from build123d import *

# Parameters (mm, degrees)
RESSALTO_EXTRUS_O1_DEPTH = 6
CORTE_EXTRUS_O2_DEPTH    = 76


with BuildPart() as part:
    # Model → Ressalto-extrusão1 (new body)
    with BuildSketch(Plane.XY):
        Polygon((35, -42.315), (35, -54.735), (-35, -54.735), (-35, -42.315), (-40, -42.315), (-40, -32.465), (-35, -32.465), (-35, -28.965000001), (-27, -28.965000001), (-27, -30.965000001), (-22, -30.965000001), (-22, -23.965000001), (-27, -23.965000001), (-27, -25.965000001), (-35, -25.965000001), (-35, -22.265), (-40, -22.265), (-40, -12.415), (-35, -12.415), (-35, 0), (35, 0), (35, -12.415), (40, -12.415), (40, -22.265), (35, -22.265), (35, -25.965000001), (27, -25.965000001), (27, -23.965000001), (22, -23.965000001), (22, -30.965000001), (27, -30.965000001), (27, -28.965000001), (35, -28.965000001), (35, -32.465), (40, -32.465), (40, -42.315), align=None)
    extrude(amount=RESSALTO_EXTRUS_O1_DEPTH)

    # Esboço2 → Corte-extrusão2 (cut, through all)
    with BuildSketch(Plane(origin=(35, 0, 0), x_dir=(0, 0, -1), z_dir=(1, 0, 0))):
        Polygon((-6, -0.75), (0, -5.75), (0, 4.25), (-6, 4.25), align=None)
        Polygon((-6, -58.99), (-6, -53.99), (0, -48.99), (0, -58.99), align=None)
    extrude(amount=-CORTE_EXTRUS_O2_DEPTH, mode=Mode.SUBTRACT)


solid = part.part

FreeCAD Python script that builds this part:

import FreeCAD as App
import Part
import Sketcher

doc = App.newDocument("Part")
body = doc.addObject("PartDesign::Body", "Body")

sketch1 = body.newObject("Sketcher::SketchObject", "Sketch")
sketch1.AttachmentSupport = (doc.getObject("XY_Plane"), [""])
sketch1.MapMode = "FlatFace"
sketch1.addGeometry([
    Part.LineSegment(App.Vector(35, -54.7, 0), App.Vector(35, -42.3, 0)),
    Part.LineSegment(App.Vector(35, -42.3, 0), App.Vector(40, -42.3, 0)),
    Part.LineSegment(App.Vector(40, -42.3, 0), App.Vector(40, -32.5, 0)),
    Part.LineSegment(App.Vector(40, -32.5, 0), App.Vector(35, -32.5, 0)),
    Part.LineSegment(App.Vector(35, -32.5, 0), App.Vector(35, -29, 0)),
    Part.LineSegment(App.Vector(35, -29, 0), App.Vector(27, -29, 0)),
    Part.LineSegment(App.Vector(27, -29, 0), App.Vector(27, -31, 0)),
    Part.LineSegment(App.Vector(27, -31, 0), App.Vector(22, -31, 0)),
    Part.LineSegment(App.Vector(22, -31, 0), App.Vector(22, -24, 0)),
    Part.LineSegment(App.Vector(22, -24, 0), App.Vector(27, -24, 0)),
    Part.LineSegment(App.Vector(27, -24, 0), App.Vector(27, -26, 0)),
    Part.LineSegment(App.Vector(27, -26, 0), App.Vector(35, -26, 0)),
    Part.LineSegment(App.Vector(35, -26, 0), App.Vector(35, -22.3, 0)),
    Part.LineSegment(App.Vector(35, -22.3, 0), App.Vector(40, -22.3, 0)),
    Part.LineSegment(App.Vector(40, -22.3, 0), App.Vector(40, -12.4, 0)),
    Part.LineSegment(App.Vector(40, -12.4, 0), App.Vector(35, -12.4, 0)),
    Part.LineSegment(App.Vector(35, -12.4, 0), App.Vector(35, 0, 0)),
    Part.LineSegment(App.Vector(35, 0, 0), App.Vector(-35, 0, 0)),
    Part.LineSegment(App.Vector(-35, 0, 0), App.Vector(-35, -12.4, 0)),
    Part.LineSegment(App.Vector(-35, -12.4, 0), App.Vector(-40, -12.4, 0)),
    Part.LineSegment(App.Vector(-40, -12.4, 0), App.Vector(-40, -22.3, 0)),
    Part.LineSegment(App.Vector(-40, -22.3, 0), App.Vector(-35, -22.3, 0)),
    Part.LineSegment(App.Vector(-35, -22.3, 0), App.Vector(-35, -26, 0)),
    Part.LineSegment(App.Vector(-35, -26, 0), App.Vector(-27, -26, 0)),
    Part.LineSegment(App.Vector(-27, -26, 0), App.Vector(-27, -24, 0)),
    Part.LineSegment(App.Vector(-27, -24, 0), App.Vector(-22, -24, 0)),
    Part.LineSegment(App.Vector(-22, -24, 0), App.Vector(-22, -31, 0)),
    Part.LineSegment(App.Vector(-22, -31, 0), App.Vector(-27, -31, 0)),
    Part.LineSegment(App.Vector(-27, -31, 0), App.Vector(-27, -29, 0)),
    Part.LineSegment(App.Vector(-27, -29, 0), App.Vector(-35, -29, 0)),
    Part.LineSegment(App.Vector(-35, -29, 0), App.Vector(-35, -32.5, 0)),
    Part.LineSegment(App.Vector(-35, -32.5, 0), App.Vector(-40, -32.5, 0)),
    Part.LineSegment(App.Vector(-40, -32.5, 0), App.Vector(-40, -42.3, 0)),
    Part.LineSegment(App.Vector(-40, -42.3, 0), App.Vector(-35, -42.3, 0)),
    Part.LineSegment(App.Vector(-35, -42.3, 0), App.Vector(-35, -54.7, 0)),
    Part.LineSegment(App.Vector(-35, -54.7, 0), App.Vector(35, -54.7, 0)),
], False)
sketch1.addConstraint([
    Sketcher.Constraint("Coincident", 0, 2, 1, 1),
    Sketcher.Constraint("Coincident", 1, 2, 2, 1),
    Sketcher.Constraint("Coincident", 2, 2, 3, 1),
    Sketcher.Constraint("Coincident", 3, 2, 4, 1),
    Sketcher.Constraint("Coincident", 4, 2, 5, 1),
    Sketcher.Constraint("Coincident", 5, 2, 6, 1),
    Sketcher.Constraint("Coincident", 6, 2, 7, 1),
    Sketcher.Constraint("Coincident", 7, 2, 8, 1),
    Sketcher.Constraint("Coincident", 8, 2, 9, 1),
    Sketcher.Constraint("Coincident", 9, 2, 10, 1),
    Sketcher.Constraint("Coincident", 10, 2, 11, 1),
    Sketcher.Constraint("Coincident", 11, 2, 12, 1),
    Sketcher.Constraint("Coincident", 12, 2, 13, 1),
    Sketcher.Constraint("Coincident", 13, 2, 14, 1),
    Sketcher.Constraint("Coincident", 14, 2, 15, 1),
    Sketcher.Constraint("Coincident", 15, 2, 16, 1),
    Sketcher.Constraint("Coincident", 16, 2, 17, 1),
    Sketcher.Constraint("Coincident", 17, 2, 18, 1),
    Sketcher.Constraint("Coincident", 18, 2, 19, 1),
    Sketcher.Constraint("Coincident", 19, 2, 20, 1),
    Sketcher.Constraint("Coincident", 20, 2, 21, 1),
    Sketcher.Constraint("Coincident", 21, 2, 22, 1),
    Sketcher.Constraint("Coincident", 22, 2, 23, 1),
    Sketcher.Constraint("Coincident", 23, 2, 24, 1),
    Sketcher.Constraint("Coincident", 24, 2, 25, 1),
    Sketcher.Constraint("Coincident", 25, 2, 26, 1),
    Sketcher.Constraint("Coincident", 26, 2, 27, 1),
    Sketcher.Constraint("Coincident", 27, 2, 28, 1),
    Sketcher.Constraint("Coincident", 28, 2, 29, 1),
    Sketcher.Constraint("Coincident", 29, 2, 30, 1),
    Sketcher.Constraint("Coincident", 30, 2, 31, 1),
    Sketcher.Constraint("Coincident", 31, 2, 32, 1),
    Sketcher.Constraint("Coincident", 32, 2, 33, 1),
    Sketcher.Constraint("Coincident", 33, 2, 34, 1),
    Sketcher.Constraint("Coincident", 34, 2, 35, 1),
    Sketcher.Constraint("Coincident", 35, 2, 0, 1),
    Sketcher.Constraint("Vertical", 0),
    Sketcher.Constraint("Horizontal", 1),
    Sketcher.Constraint("Vertical", 2),
    Sketcher.Constraint("Horizontal", 3),
    Sketcher.Constraint("Vertical", 4),
    Sketcher.Constraint("Horizontal", 5),
    Sketcher.Constraint("Vertical", 6),
    Sketcher.Constraint("Horizontal", 7),
    Sketcher.Constraint("Vertical", 8),
    Sketcher.Constraint("Horizontal", 9),
    Sketcher.Constraint("Vertical", 10),
    Sketcher.Constraint("Horizontal", 11),
    Sketcher.Constraint("Vertical", 12),
    Sketcher.Constraint("Horizontal", 13),
    Sketcher.Constraint("Vertical", 14),
    Sketcher.Constraint("Horizontal", 15),
    Sketcher.Constraint("Vertical", 16),
    Sketcher.Constraint("Horizontal", 17),
    Sketcher.Constraint("Vertical", 18),
    Sketcher.Constraint("Horizontal", 19),
    Sketcher.Constraint("Vertical", 20),
    Sketcher.Constraint("Horizontal", 21),
    Sketcher.Constraint("Vertical", 22),
    Sketcher.Constraint("Horizontal", 23),
    Sketcher.Constraint("Vertical", 24),
    Sketcher.Constraint("Horizontal", 25),
    Sketcher.Constraint("Vertical", 26),
    Sketcher.Constraint("Horizontal", 27),
    Sketcher.Constraint("Vertical", 28),
    Sketcher.Constraint("Horizontal", 29),
    Sketcher.Constraint("Vertical", 30),
    Sketcher.Constraint("Horizontal", 31),
    Sketcher.Constraint("Vertical", 32),
    Sketcher.Constraint("Horizontal", 33),
    Sketcher.Constraint("Vertical", 34),
    Sketcher.Constraint("Horizontal", 35),
    Sketcher.Constraint("Symmetric", 16, 2, 17, 2, -1, 1),
    Sketcher.Constraint("Symmetric", 14, 2, 19, 2, -2),
    Sketcher.Constraint("Symmetric", 12, 2, 21, 2, -2),
    Sketcher.Constraint("Symmetric", 10, 2, 23, 2, -2),
    Sketcher.Constraint("Symmetric", 8, 2, 25, 2, -2),
    Sketcher.Constraint("Symmetric", 6, 2, 27, 2, -2),
    Sketcher.Constraint("Symmetric", 4, 2, 29, 2, -2),
    Sketcher.Constraint("Symmetric", 2, 2, 31, 2, -2),
    Sketcher.Constraint("Symmetric", 0, 2, 33, 2, -2),
    Sketcher.Constraint("Vertical", 0, 2, 3, 2),
    Sketcher.Constraint("Vertical", 6, 2, 9, 2),
    Sketcher.Constraint("Vertical", 4, 2, 11, 2),
    Sketcher.Constraint("Vertical", 2, 2, 13, 2),
    Sketcher.Constraint("Vertical", 12, 2, 15, 2),
    Sketcher.Constraint("Equal", 3, 7),
    Sketcher.Constraint("Equal", 6, 10),
    Sketcher.Constraint("Equal", 2, 14),
    Sketcher.Constraint("DistanceX", 1, 1, 1, 2, 5.0),
    Sketcher.Constraint("DistanceX", 5, 2, 5, 1, 8.0),
    Sketcher.Constraint("DistanceX", 17, 2, 17, 1, 70.0),
    Sketcher.Constraint("DistanceY", 6, 2, 6, 1, 2.0),
    Sketcher.Constraint("DistanceY", 8, 1, 8, 2, 7.0),
    Sketcher.Constraint("DistanceY", 4, 1, 4, 2, 3.5),
    Sketcher.Constraint("DistanceY", 12, 1, 12, 2, 3.7),
    Sketcher.Constraint("DistanceY", 0, 1, 0, 2, 12.42),
    Sketcher.Constraint("DistanceY", 2, 1, 2, 2, 9.85),
    Sketcher.Constraint("DistanceY", 16, 1, 16, 2, 12.415),
])
pad1 = body.newObject("PartDesign::Pad", "Pad")
pad1.Profile = sketch1
pad1.Length = 6

sketch2 = body.newObject("Sketcher::SketchObject", "Sketch001")
sketch2.AttachmentSupport = (doc.getObject("YZ_Plane"), [""])
sketch2.MapMode = "FlatFace"
sketch2.AttachmentOffset = App.Placement(App.Vector(0, 0, 35), App.Rotation())
sketch2.addGeometry([
    Part.LineSegment(App.Vector(-1, 6, 0), App.Vector(-6, 0, 0)),
    Part.LineSegment(App.Vector(-6, 0, 0), App.Vector(4, 0, 0)),
    Part.LineSegment(App.Vector(4, 0, 0), App.Vector(4, 6, 0)),
    Part.LineSegment(App.Vector(4, 6, 0), App.Vector(-1, 6, 0)),
    Part.LineSegment(App.Vector(-54, 6, 0), App.Vector(-59, 6, 0)),
    Part.LineSegment(App.Vector(-59, 6, 0), App.Vector(-59, 0, 0)),
    Part.LineSegment(App.Vector(-59, 0, 0), App.Vector(-49, 0, 0)),
    Part.LineSegment(App.Vector(-49, 0, 0), App.Vector(-54, 6, 0)),
], False)
sketch2.addConstraint([
    Sketcher.Constraint("Coincident", 0, 2, 1, 1),
    Sketcher.Constraint("Coincident", 1, 2, 2, 1),
    Sketcher.Constraint("Coincident", 2, 2, 3, 1),
    Sketcher.Constraint("Coincident", 3, 2, 0, 1),
    Sketcher.Constraint("Coincident", 4, 2, 5, 1),
    Sketcher.Constraint("Coincident", 5, 2, 6, 1),
    Sketcher.Constraint("Coincident", 6, 2, 7, 1),
    Sketcher.Constraint("Coincident", 7, 2, 4, 1),
    Sketcher.Constraint("Horizontal", 1),
    Sketcher.Constraint("Vertical", 2),
    Sketcher.Constraint("Horizontal", 3),
    Sketcher.Constraint("Horizontal", 4),
    Sketcher.Constraint("Vertical", 5),
    Sketcher.Constraint("Horizontal", 6),
    Sketcher.Constraint("PointOnObject", 0, 2, -1),
    Sketcher.Constraint("PointOnObject", 5, 2, -1),
    Sketcher.Constraint("Horizontal", 3, 2, 4, 2),
    Sketcher.Constraint("Equal", 3, 4),
    Sketcher.Constraint("Equal", 1, 6),
    Sketcher.Constraint("DistanceX", 1, 1, 1, 2, 10.0),
    Sketcher.Constraint("DistanceX", 3, 2, 3, 1, 5.0),
    Sketcher.Constraint("DistanceY", 2, 1, 2, 2, 6.0),
    Sketcher.Constraint("DistanceX", 0, 2, -1, 1, 5.75),
    Sketcher.Constraint("DistanceX", 4, 2, -1, 1, 58.99),
])
pocket1 = body.newObject("PartDesign::Pocket", "Pocket")
pocket1.Profile = sketch2
pocket1.Type = "ThroughAll"

doc.recompute()
